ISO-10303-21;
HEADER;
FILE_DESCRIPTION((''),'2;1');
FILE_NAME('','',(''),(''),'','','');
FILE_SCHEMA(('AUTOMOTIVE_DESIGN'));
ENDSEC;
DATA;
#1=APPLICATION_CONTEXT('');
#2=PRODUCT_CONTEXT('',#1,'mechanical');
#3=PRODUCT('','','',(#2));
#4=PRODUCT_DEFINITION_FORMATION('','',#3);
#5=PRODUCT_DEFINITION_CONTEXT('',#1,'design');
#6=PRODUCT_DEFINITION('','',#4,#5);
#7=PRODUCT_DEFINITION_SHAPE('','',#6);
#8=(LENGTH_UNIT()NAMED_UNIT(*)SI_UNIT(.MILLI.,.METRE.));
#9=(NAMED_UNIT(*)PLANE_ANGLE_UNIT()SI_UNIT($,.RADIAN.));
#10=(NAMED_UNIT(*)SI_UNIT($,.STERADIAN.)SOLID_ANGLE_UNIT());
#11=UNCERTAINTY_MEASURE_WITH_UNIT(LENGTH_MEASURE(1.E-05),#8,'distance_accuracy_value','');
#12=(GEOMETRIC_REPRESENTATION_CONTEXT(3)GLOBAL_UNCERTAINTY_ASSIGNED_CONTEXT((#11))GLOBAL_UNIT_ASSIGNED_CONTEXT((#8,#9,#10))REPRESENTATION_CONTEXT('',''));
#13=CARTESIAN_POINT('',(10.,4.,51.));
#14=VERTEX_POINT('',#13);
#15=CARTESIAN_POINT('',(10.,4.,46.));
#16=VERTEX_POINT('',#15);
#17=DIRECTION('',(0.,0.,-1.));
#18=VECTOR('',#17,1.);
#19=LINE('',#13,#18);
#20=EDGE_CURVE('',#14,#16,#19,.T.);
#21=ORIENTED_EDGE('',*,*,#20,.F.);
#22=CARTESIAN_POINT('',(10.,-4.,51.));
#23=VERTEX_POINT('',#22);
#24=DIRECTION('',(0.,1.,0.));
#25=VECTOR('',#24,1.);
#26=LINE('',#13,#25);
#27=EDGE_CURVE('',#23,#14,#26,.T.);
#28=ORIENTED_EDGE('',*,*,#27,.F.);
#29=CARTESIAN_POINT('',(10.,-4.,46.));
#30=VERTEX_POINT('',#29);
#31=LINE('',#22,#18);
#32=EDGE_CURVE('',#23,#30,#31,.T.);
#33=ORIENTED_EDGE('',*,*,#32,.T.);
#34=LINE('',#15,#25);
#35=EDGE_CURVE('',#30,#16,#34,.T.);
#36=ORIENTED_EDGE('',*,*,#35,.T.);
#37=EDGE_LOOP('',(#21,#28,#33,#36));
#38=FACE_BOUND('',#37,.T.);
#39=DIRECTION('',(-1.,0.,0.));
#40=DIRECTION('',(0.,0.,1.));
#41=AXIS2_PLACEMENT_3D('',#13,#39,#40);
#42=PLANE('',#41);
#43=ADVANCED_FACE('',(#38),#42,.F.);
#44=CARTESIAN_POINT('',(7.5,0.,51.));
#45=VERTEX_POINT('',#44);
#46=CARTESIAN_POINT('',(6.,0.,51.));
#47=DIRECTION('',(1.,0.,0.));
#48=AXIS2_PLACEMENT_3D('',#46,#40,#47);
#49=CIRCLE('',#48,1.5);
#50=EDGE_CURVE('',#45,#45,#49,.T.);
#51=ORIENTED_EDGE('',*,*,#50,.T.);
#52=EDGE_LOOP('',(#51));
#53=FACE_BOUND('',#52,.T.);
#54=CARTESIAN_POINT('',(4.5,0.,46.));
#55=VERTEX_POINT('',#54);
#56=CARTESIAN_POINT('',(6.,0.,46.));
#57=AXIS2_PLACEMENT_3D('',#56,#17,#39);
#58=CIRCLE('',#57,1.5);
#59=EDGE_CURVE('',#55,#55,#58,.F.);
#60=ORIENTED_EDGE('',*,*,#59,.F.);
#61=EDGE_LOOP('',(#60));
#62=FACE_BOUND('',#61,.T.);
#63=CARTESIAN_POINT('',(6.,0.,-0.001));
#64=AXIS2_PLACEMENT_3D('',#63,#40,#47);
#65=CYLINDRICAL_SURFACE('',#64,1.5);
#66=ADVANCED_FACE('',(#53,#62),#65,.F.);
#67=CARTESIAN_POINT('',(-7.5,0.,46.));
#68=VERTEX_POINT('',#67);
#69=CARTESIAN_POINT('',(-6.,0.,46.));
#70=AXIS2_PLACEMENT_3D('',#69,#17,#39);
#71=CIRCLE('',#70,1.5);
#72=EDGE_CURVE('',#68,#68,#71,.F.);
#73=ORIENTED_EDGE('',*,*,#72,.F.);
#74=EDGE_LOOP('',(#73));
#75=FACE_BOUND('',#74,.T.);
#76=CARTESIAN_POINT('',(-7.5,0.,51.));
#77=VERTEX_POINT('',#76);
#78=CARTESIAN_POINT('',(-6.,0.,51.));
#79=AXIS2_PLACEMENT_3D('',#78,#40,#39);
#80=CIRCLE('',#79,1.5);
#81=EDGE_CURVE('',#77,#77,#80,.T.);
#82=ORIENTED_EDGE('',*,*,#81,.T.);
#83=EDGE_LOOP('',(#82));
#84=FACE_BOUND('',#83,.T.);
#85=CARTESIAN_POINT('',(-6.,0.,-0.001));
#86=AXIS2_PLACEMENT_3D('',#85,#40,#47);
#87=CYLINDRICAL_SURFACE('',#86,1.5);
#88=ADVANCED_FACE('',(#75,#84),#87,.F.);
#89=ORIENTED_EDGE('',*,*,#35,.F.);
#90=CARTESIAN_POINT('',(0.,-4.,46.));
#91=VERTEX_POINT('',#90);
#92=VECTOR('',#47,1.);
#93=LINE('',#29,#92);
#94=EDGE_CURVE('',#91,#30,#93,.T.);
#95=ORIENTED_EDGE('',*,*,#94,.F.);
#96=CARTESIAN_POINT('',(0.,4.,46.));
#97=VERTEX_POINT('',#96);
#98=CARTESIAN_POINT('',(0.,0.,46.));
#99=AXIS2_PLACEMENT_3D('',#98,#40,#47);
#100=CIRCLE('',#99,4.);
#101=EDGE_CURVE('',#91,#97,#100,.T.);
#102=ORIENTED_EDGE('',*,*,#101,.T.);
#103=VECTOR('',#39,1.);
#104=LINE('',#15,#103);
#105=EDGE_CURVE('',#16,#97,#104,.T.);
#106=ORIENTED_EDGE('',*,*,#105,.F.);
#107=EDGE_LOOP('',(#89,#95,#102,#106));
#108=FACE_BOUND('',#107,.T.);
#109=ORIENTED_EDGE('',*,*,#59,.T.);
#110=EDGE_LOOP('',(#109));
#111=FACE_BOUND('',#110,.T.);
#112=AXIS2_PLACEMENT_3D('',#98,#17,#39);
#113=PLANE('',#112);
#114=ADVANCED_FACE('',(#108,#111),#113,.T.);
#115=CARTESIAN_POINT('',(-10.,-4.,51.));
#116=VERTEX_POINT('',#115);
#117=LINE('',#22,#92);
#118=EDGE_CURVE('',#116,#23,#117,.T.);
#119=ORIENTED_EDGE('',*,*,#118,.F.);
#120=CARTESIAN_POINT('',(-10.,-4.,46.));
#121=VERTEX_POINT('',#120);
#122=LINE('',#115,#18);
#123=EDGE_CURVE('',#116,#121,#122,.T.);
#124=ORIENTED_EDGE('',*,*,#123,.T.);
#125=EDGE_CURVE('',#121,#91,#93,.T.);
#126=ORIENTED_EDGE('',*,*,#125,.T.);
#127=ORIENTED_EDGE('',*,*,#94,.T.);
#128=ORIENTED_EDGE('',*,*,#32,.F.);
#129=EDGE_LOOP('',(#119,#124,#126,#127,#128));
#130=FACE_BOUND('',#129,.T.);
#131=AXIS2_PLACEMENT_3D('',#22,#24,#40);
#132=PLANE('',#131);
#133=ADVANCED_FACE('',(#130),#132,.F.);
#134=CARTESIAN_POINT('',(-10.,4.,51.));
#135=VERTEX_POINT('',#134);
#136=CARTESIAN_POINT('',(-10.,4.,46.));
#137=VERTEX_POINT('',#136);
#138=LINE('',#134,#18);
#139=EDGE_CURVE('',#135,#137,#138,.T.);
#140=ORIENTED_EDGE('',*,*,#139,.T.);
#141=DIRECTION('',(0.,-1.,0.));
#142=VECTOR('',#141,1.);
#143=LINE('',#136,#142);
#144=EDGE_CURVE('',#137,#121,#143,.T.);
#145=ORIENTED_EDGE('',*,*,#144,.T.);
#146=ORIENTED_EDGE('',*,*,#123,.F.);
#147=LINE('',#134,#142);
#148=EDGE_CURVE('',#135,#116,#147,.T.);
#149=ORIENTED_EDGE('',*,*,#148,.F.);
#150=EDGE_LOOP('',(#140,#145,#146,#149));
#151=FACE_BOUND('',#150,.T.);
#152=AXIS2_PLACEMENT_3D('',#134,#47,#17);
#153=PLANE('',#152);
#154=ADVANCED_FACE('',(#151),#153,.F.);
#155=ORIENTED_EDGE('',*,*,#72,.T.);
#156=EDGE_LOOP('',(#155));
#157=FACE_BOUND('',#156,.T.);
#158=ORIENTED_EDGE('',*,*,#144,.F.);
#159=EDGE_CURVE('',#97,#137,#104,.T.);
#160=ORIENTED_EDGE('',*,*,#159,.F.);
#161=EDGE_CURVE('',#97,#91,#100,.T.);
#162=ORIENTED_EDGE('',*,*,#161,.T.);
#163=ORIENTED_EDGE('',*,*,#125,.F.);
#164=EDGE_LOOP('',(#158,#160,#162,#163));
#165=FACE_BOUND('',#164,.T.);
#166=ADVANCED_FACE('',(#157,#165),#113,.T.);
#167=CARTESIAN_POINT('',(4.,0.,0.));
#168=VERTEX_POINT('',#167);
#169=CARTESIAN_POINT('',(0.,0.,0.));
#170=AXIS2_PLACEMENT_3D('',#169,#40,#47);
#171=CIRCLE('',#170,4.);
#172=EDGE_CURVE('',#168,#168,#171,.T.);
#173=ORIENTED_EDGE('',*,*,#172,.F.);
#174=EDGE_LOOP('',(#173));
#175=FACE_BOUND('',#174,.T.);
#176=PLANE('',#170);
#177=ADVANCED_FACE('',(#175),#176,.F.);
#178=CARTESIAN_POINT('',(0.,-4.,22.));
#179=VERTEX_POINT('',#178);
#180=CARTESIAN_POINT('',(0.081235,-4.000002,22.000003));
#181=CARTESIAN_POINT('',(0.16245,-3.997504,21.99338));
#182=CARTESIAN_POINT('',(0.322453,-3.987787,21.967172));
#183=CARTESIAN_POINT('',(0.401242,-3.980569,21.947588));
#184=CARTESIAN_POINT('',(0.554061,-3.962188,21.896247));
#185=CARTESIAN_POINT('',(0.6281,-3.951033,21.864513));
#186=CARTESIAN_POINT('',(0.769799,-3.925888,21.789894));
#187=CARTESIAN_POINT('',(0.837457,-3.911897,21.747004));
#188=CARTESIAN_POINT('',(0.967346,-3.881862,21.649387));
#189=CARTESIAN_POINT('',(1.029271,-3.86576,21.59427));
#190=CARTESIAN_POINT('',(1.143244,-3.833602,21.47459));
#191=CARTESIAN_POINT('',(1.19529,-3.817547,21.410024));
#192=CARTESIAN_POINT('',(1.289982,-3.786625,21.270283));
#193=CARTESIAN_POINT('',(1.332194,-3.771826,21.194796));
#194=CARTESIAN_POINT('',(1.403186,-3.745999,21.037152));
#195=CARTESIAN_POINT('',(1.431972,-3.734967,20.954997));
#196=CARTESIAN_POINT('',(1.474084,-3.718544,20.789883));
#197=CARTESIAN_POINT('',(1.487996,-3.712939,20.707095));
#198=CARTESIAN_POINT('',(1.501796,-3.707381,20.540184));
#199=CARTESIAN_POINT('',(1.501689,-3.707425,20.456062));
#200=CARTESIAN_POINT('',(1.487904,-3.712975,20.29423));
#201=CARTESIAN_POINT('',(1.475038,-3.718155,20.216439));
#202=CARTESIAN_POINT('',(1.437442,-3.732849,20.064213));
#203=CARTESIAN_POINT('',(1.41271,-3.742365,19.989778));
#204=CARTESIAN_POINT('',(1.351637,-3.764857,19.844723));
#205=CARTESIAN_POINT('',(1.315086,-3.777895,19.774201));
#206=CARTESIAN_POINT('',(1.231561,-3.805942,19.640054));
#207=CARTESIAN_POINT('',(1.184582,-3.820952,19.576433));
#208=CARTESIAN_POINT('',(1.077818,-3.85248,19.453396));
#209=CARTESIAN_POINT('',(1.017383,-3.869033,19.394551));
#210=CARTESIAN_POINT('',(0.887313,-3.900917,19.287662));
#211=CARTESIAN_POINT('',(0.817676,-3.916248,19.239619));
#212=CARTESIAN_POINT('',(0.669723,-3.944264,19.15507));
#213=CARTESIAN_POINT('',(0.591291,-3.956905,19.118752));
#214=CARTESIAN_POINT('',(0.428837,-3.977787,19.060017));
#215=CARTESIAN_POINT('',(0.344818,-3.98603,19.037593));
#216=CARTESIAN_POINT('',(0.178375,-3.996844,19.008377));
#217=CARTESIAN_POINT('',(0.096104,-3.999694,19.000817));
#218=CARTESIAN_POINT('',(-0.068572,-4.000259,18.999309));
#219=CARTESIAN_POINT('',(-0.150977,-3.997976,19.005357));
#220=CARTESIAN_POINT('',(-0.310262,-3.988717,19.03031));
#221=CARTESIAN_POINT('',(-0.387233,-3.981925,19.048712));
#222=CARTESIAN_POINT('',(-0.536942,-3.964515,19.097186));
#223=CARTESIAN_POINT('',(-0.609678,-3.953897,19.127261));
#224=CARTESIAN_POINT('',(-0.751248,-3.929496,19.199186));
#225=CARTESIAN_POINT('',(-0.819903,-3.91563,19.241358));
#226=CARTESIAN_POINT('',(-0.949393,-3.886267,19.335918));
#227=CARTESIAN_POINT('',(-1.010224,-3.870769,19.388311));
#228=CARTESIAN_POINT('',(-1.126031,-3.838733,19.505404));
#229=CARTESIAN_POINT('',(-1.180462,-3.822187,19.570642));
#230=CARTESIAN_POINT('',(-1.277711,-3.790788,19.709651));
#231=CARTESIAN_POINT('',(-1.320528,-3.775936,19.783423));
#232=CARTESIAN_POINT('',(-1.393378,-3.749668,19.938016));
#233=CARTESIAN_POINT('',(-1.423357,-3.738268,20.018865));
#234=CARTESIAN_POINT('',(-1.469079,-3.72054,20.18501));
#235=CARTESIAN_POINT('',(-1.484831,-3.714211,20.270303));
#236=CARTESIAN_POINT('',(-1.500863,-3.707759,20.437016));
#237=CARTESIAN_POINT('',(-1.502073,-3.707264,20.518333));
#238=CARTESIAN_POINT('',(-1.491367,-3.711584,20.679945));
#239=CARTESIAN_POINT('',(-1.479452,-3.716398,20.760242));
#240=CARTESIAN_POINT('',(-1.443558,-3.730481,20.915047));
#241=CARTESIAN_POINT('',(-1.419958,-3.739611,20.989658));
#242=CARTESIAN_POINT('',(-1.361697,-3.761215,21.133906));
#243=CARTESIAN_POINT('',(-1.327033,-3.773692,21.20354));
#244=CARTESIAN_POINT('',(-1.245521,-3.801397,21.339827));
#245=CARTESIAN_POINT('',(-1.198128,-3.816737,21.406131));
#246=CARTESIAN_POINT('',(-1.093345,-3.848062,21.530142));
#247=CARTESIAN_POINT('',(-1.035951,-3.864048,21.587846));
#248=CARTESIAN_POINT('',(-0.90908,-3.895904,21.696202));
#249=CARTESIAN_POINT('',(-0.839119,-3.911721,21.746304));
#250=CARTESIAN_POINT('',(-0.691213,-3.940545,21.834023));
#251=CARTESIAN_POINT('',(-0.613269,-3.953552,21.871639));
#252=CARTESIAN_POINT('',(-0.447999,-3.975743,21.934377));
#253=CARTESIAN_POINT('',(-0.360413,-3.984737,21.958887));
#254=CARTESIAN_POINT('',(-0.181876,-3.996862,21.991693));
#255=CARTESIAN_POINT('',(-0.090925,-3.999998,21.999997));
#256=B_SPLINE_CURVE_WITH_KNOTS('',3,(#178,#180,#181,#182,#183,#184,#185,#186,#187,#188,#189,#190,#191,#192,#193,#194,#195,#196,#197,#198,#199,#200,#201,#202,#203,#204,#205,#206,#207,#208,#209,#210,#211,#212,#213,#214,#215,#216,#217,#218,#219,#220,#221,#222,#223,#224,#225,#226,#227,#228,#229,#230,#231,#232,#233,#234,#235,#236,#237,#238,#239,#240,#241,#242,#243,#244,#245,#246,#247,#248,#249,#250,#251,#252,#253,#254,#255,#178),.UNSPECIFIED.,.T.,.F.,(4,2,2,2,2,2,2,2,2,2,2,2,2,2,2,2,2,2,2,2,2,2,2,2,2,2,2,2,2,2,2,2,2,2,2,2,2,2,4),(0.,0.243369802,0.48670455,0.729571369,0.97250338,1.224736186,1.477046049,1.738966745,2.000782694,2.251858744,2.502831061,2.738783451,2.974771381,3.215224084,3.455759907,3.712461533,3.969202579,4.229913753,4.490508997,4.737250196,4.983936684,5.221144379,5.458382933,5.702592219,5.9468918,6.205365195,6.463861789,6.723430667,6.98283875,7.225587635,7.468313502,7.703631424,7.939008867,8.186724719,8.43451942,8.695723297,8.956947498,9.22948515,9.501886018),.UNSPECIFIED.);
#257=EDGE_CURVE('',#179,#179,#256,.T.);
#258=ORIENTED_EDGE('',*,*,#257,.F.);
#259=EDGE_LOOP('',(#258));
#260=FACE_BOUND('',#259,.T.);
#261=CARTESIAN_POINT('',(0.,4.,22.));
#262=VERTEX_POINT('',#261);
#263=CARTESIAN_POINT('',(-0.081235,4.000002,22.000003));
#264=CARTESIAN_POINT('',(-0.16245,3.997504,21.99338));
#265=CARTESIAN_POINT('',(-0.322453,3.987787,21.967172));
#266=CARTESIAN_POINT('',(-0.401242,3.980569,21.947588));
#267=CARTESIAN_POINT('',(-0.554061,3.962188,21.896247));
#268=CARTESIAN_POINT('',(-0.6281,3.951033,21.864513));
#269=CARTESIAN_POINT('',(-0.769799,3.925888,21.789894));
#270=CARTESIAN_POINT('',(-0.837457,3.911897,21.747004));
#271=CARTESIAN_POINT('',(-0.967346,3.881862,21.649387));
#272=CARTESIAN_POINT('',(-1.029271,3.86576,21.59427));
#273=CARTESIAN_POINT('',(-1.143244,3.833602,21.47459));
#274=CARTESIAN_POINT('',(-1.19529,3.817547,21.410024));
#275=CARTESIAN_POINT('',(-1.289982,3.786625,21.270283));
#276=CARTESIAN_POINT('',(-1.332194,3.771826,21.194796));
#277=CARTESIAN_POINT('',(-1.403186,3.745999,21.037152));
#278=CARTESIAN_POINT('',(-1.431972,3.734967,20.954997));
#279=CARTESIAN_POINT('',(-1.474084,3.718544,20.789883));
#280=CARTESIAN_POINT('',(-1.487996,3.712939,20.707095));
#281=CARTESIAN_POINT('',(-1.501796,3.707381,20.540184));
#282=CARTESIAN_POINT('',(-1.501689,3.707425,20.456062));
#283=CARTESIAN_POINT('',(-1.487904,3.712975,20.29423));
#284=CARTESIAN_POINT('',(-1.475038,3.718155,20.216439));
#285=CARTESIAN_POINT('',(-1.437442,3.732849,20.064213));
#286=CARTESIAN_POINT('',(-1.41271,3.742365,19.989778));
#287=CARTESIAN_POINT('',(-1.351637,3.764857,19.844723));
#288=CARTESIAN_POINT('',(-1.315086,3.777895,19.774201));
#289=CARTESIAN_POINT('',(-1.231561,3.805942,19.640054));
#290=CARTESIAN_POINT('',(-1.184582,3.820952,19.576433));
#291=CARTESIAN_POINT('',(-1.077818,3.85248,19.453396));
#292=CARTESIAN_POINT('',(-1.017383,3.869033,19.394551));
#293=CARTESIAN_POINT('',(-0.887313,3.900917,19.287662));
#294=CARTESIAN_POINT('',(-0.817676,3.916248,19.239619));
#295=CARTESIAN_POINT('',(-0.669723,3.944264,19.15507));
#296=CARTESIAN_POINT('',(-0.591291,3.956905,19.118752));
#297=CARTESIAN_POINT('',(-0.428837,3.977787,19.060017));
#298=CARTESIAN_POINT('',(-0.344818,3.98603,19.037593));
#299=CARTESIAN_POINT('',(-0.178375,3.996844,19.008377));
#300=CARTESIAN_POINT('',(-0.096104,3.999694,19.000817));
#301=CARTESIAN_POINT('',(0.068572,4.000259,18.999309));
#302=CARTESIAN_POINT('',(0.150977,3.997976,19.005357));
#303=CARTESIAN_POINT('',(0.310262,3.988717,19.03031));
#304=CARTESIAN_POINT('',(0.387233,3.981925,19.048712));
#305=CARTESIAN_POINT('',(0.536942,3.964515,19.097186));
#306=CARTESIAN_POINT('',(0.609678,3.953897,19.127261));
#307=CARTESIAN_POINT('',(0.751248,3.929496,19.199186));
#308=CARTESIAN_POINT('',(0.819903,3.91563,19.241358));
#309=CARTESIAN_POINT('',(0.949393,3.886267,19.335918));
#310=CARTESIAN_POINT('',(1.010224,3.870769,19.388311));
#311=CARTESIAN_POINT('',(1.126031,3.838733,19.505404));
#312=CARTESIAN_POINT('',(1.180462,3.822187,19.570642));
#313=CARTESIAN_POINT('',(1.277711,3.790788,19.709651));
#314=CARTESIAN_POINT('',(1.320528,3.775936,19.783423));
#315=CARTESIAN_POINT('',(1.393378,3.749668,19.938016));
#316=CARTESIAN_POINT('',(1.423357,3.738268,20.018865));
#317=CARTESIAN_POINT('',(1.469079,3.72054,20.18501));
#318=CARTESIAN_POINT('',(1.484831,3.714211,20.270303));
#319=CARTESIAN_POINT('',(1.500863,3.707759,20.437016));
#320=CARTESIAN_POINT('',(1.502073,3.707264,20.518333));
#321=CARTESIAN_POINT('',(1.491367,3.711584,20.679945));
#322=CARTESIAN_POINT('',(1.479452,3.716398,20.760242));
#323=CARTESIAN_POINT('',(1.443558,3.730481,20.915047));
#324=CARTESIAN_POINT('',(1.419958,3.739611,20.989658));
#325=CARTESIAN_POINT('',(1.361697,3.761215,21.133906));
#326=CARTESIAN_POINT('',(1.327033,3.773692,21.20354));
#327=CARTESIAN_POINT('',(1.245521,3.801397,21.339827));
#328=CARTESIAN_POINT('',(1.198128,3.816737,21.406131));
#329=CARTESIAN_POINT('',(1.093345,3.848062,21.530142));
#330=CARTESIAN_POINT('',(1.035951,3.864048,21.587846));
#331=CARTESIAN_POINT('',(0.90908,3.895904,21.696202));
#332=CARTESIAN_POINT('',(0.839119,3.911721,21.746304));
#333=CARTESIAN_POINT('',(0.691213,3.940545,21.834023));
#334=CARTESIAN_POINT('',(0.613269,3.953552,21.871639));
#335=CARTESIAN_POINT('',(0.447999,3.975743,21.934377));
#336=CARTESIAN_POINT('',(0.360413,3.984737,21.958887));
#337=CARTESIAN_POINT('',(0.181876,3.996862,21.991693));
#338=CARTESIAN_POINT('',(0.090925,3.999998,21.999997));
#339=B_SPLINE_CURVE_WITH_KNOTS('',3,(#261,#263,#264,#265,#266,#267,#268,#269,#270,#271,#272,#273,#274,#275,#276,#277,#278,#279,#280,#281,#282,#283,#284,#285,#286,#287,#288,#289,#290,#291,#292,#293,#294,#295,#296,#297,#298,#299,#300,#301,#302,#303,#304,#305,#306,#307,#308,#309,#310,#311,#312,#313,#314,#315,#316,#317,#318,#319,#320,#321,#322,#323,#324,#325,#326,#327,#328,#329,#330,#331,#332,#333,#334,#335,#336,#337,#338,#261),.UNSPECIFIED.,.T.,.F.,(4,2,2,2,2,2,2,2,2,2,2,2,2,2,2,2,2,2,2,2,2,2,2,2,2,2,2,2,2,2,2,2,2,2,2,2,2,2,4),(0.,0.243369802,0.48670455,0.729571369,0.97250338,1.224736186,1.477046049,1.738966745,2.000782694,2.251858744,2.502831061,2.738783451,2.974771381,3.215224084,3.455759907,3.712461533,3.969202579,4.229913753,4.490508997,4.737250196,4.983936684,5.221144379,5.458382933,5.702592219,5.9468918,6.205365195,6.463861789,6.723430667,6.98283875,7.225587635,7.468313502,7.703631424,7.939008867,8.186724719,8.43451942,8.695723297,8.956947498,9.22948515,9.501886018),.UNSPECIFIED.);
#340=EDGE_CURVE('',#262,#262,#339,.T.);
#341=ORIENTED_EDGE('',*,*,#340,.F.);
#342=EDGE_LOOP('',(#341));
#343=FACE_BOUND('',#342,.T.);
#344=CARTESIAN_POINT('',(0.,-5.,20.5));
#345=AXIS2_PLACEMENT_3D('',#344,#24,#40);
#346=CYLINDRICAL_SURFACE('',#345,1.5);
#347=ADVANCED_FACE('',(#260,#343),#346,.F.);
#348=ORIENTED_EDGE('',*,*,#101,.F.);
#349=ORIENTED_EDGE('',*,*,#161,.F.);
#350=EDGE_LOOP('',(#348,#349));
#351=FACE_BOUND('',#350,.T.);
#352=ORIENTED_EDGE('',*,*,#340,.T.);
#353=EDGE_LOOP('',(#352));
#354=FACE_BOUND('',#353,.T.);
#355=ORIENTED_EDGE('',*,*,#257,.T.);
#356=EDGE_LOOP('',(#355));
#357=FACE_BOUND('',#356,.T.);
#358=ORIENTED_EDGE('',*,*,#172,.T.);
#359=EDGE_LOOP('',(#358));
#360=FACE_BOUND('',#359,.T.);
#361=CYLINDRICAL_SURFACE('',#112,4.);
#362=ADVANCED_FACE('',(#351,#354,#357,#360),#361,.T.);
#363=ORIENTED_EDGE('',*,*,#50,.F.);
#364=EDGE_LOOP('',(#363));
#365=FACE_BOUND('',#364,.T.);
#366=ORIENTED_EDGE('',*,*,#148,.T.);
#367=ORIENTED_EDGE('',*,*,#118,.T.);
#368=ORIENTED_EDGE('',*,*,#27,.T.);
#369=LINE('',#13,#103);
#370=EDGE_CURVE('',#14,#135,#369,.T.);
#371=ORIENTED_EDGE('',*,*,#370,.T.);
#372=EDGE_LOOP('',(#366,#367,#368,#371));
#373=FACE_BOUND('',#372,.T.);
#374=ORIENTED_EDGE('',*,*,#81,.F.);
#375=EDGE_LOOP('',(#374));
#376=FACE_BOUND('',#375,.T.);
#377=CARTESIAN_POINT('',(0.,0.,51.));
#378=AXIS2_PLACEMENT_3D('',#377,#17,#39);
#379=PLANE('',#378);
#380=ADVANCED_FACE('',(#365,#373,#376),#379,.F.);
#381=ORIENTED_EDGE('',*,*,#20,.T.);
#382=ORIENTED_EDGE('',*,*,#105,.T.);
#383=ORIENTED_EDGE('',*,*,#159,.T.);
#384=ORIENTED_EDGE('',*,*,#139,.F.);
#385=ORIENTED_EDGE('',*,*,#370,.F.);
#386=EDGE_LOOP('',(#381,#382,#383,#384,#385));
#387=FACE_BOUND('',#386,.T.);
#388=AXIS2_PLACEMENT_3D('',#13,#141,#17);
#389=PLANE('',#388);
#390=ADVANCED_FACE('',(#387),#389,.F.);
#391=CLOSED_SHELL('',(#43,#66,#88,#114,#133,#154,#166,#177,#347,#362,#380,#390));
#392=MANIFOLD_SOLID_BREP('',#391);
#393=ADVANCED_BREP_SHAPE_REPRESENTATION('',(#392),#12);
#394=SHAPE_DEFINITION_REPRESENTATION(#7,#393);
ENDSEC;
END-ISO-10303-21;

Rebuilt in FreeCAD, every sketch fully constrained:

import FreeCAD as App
import Part
import Sketcher

V = App.Vector


def add_polygon(sketch, points):
    """Adds a closed chain of lines whose ends are joined by coincident constraints."""
    first, n = sketch.GeometryCount, len(points)
    for a, b in zip(points, points[1:] + points[:1]):
        sketch.addGeometry(Part.LineSegment(App.Vector(*a, 0), App.Vector(*b, 0)), False)
    for i in range(n):
        sketch.addConstraint(Sketcher.Constraint("Coincident", first + i, 2, first + (i + 1) % n, 1))

doc = App.newDocument("Part")
body = doc.addObject("PartDesign::Body", "Body")

# Sketch on XY plane
sketch1 = body.newObject("Sketcher::SketchObject", "Sketch")
sketch1.AttachmentSupport = (doc.getObject("XY_Plane"), [""])
sketch1.MapMode = "FlatFace"
sketch1.addGeometry(Part.Circle(V(0, 0, 0), V(0, 0, 1), 4), False)
sketch1.addConstraint([
    Sketcher.Constraint("Coincident", 0, 3, -1, 1),
    Sketcher.Constraint("Diameter", 0, 8.0),
])
pad1 = body.newObject("PartDesign::Pad", "Pad")
pad1.Profile = sketch1
pad1.Length = 46

# Sketch on XY plane
sketch2 = body.newObject("Sketcher::SketchObject", "Sketch001")
sketch2.AttachmentSupport = (doc.getObject("XY_Plane"), [""])
sketch2.MapMode = "FlatFace"
sketch2.AttachmentOffset = App.Placement(V(0, 0, 46), App.Rotation())
add_polygon(sketch2, [(-10, 4), (-10, -4), (10, -4), (10, 4)])  # lines 0-3
sketch2.addConstraint([
    Sketcher.Constraint("Vertical", 0),
    Sketcher.Constraint("Horizontal", 1),
    Sketcher.Constraint("Vertical", 2),
    Sketcher.Constraint("Horizontal", 3),
    Sketcher.Constraint("Symmetric", 0, 2, 2, 2, -1, 1),
    Sketcher.Constraint("DistanceX", 1, 1, 1, 2, 20.0),
    Sketcher.Constraint("DistanceY", 0, 2, 0, 1, 8.0),
])
pad2 = body.newObject("PartDesign::Pad", "Pad001")
pad2.Profile = sketch2
pad2.Length = 5

# Sketch on XY plane
sketch3 = body.newObject("Sketcher::SketchObject", "Sketch002")
sketch3.AttachmentSupport = (doc.getObject("XY_Plane"), [""])
sketch3.MapMode = "FlatFace"
sketch3.AttachmentOffset = App.Placement(V(0, 0, 51), App.Rotation())
sketch3.addGeometry(Part.Circle(V(6, 0, 0), V(0, 0, 1), 1.5), False)
sketch3.addConstraint([
    Sketcher.Constraint("PointOnObject", 0, 3, -1),
    Sketcher.Constraint("Diameter", 0, 3.0),
    Sketcher.Constraint("DistanceX", -1, 1, 0, 3, 6.0),
])
pocket1 = body.newObject("PartDesign::Pocket", "Pocket")
pocket1.Profile = sketch3
pocket1.Type = "UpToFirst"

# Sketch on XY plane
sketch4 = body.newObject("Sketcher::SketchObject", "Sketch003")
sketch4.AttachmentSupport = (doc.getObject("XY_Plane"), [""])
sketch4.MapMode = "FlatFace"
sketch4.AttachmentOffset = App.Placement(V(0, 0, 51), App.Rotation())
sketch4.addGeometry(Part.Circle(V(-6, 0, 0), V(0, 0, 1), 1.5), False)
sketch4.addConstraint([
    Sketcher.Constraint("PointOnObject", 0, 3, -1),
    Sketcher.Constraint("Diameter", 0, 3.0),
    Sketcher.Constraint("DistanceX", 0, 3, -1, 1, 6.0),
])
pocket2 = body.newObject("PartDesign::Pocket", "Pocket001")
pocket2.Profile = sketch4
pocket2.Type = "UpToFirst"

# Sketch on XZ plane
sketch5 = body.newObject("Sketcher::SketchObject", "Sketch004")
sketch5.AttachmentSupport = (doc.getObject("XZ_Plane"), [""])
sketch5.MapMode = "FlatFace"
sketch5.addGeometry(Part.Circle(V(0, 20.5, 0), V(0, 0, 1), 1.5), False)
sketch5.addConstraint([
    Sketcher.Constraint("PointOnObject", 0, 3, -2),
    Sketcher.Constraint("Diameter", 0, 3.0),
    Sketcher.Constraint("DistanceY", -1, 1, 0, 3, 20.5),
])
pocket3 = body.newObject("PartDesign::Pocket", "Pocket002")
pocket3.Profile = sketch5
pocket3.Length = 10
pocket3.Midplane = True

doc.recompute()
